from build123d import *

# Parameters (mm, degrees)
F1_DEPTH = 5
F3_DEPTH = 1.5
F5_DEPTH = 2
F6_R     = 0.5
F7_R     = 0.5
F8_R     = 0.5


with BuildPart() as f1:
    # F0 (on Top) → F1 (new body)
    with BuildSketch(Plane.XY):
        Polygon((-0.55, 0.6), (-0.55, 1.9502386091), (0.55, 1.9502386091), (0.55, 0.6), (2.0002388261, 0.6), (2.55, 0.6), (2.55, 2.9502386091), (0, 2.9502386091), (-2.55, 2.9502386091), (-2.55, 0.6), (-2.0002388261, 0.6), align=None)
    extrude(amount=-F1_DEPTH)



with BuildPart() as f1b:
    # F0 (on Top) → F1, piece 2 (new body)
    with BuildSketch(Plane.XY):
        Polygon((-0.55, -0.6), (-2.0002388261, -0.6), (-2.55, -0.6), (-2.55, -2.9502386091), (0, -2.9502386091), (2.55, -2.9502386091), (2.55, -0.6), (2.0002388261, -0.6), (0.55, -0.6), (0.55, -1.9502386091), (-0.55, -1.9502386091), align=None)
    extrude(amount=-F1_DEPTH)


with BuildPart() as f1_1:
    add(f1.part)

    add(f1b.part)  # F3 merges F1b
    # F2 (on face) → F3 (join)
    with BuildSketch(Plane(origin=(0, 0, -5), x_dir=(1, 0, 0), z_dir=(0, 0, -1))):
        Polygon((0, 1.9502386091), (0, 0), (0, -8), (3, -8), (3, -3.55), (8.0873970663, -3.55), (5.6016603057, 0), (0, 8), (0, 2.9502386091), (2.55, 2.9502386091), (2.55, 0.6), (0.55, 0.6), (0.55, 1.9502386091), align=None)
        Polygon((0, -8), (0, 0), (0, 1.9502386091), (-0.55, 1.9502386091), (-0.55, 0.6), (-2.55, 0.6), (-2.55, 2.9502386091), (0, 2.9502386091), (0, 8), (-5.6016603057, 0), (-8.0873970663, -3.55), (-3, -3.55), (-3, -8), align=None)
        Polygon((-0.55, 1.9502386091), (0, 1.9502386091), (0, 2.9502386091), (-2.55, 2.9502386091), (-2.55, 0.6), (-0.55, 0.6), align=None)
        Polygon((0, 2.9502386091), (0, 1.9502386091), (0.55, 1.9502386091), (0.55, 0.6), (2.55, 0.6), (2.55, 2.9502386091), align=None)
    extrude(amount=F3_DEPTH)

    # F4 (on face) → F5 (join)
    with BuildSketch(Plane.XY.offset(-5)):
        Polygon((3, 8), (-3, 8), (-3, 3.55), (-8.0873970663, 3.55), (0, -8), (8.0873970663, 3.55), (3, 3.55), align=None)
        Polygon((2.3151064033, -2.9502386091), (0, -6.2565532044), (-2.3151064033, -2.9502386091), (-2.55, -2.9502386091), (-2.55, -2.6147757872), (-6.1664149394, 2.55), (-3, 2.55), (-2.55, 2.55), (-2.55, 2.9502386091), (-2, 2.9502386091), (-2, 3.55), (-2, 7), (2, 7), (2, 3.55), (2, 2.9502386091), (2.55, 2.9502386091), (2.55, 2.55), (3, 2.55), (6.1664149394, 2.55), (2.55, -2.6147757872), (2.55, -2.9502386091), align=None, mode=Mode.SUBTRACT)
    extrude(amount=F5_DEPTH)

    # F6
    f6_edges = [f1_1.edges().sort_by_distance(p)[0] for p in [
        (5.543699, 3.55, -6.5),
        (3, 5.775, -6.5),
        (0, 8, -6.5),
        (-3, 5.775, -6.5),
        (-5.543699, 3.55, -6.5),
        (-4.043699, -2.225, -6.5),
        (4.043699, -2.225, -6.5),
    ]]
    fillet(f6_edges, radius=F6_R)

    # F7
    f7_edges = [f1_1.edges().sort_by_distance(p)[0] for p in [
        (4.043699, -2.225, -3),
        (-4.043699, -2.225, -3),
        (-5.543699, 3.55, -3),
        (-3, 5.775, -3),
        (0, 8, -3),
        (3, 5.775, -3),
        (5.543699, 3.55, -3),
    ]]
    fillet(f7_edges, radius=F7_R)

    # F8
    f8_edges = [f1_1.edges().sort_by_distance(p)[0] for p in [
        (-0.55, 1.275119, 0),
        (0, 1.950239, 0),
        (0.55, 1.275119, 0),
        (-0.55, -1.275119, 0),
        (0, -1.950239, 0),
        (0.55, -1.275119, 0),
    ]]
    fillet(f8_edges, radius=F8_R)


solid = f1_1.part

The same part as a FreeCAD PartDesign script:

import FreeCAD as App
import Part
import Sketcher

V = App.Vector
Q = App.Units.Quantity


def edges_at(feature, points):
    """Names of the edges that pass closest to the given points."""
    edges = feature.Shape.Edges
    near = lambda p: min(range(len(edges)), key=lambda i: edges[i].distToShape(Part.Vertex(*p))[0])
    return sorted({f"Edge{near(p) + 1}" for p in points})


def add_polygon(sketch, points):
    """Adds a closed chain of lines whose ends are joined by coincident constraints."""
    first, n = sketch.GeometryCount, len(points)
    for a, b in zip(points, points[1:] + points[:1]):
        sketch.addGeometry(Part.LineSegment(App.Vector(*a, 0), App.Vector(*b, 0)), False)
    for i in range(n):
        sketch.addConstraint(Sketcher.Constraint("Coincident", first + i, 2, first + (i + 1) % n, 1))

doc = App.newDocument("Part")
body = doc.addObject("PartDesign::Body", "Body")

sketch1 = body.newObject("Sketcher::SketchObject", "Sketch")
sketch1.AttachmentSupport = (doc.getObject("XY_Plane"), [""])
sketch1.MapMode = "FlatFace"
add_polygon(sketch1, [(-0.55, 0.6), (-0.55, 1.950239), (0.55, 1.950239), (0.55, 0.6), (2.55, 0.6), (2.55, 2.950239), (-2.55, 2.950239), (-2.55, 0.6)])
sketch1.addConstraint(Sketcher.Constraint("Vertical", 0))
sketch1.addConstraint(Sketcher.Constraint("Horizontal", 1))
sketch1.addConstraint(Sketcher.Constraint("Vertical", 2))
sketch1.addConstraint(Sketcher.Constraint("Horizontal", 3))
sketch1.addConstraint(Sketcher.Constraint("Vertical", 4))
sketch1.addConstraint(Sketcher.Constraint("Horizontal", 5))
sketch1.addConstraint(Sketcher.Constraint("Vertical", 6))
sketch1.addConstraint(Sketcher.Constraint("Horizontal", 7))
sketch1.addConstraint(Sketcher.Constraint("Symmetric", 3, 2, 6, 2, -2))
sketch1.addConstraint(Sketcher.Constraint("Equal", 3, 7))
sketch1.addConstraint(Sketcher.Constraint("DistanceX", 3, 1, 3, 2, 2.0))
sketch1.addConstraint(Sketcher.Constraint("DistanceX", 1, 1, 1, 2, 1.1))
sketch1.addConstraint(Sketcher.Constraint("DistanceY", 1, 2, 4, 2, 1.0))
sketch1.addConstraint(Sketcher.Constraint("DistanceY", -1, 1, 2, 2, 0.6))
sketch1.addConstraint(Sketcher.Constraint("DistanceY", 0, 1, 0, 2, 1.350239))
pad1 = body.newObject("PartDesign::Pad", "Pad")
pad1.Profile = sketch1
pad1.Length = 5
pad1.Reversed = True
body2 = doc.addObject("PartDesign::Body", "Body001")

sketch2 = body2.newObject("Sketcher::SketchObject", "Sketch001")
sketch2.AttachmentSupport = (doc.getObject("XY_Plane001"), [""])
sketch2.MapMode = "FlatFace"
add_polygon(sketch2, [(-0.55, -0.6), (-2.55, -0.6), (-2.55, -2.950239), (2.55, -2.950239), (2.55, -0.6), (0.55, -0.6), (0.55, -1.950239), (-0.55, -1.950239)])
sketch2.addConstraint(Sketcher.Constraint("Horizontal", 0))
sketch2.addConstraint(Sketcher.Constraint("Vertical", 1))
sketch2.addConstraint(Sketcher.Constraint("Horizontal", 2))
sketch2.addConstraint(Sketcher.Constraint("Vertical", 3))
sketch2.addConstraint(Sketcher.Constraint("Horizontal", 4))
sketch2.addConstraint(Sketcher.Constraint("Vertical", 5))
sketch2.addConstraint(Sketcher.Constraint("Horizontal", 6))
sketch2.addConstraint(Sketcher.Constraint("Vertical", 7))
sketch2.addConstraint(Sketcher.Constraint("Symmetric", 0, 2, 3, 2, -2))
sketch2.addConstraint(Sketcher.Constraint("Equal", 0, 4))
sketch2.addConstraint(Sketcher.Constraint("DistanceX", 0, 2, 0, 1, 2.0))
sketch2.addConstraint(Sketcher.Constraint("DistanceX", 2, 1, 2, 2, 5.1))
sketch2.addConstraint(Sketcher.Constraint("DistanceY", 2, 2, 5, 2, 1.0))
sketch2.addConstraint(Sketcher.Constraint("DistanceY", 0, 2, -1, 1, 0.6))
sketch2.addConstraint(Sketcher.Constraint("DistanceY", 1, 2, 1, 1, 2.350239))
pad2 = body2.newObject("PartDesign::Pad", "Pad001")
pad2.Profile = sketch2
pad2.Length = 5
pad2.Reversed = True
body.AllowCompound = True
doc.recompute()

boolean = body.newObject("PartDesign::Boolean", "Boolean")
boolean.Type = "Fuse"
boolean.addObjects([body2])

sketch3 = body.newObject("Sketcher::SketchObject", "Sketch002")
sketch3.AttachmentSupport = (doc.getObject("XY_Plane"), [""])
sketch3.MapMode = "FlatFace"
sketch3.AttachmentOffset = App.Placement(V(0, 0, -5), App.Rotation())
add_polygon(sketch3, [(3, 8), (3, 3.55), (8.087397, 3.55), (5.60166, 0), (0, -8), (-5.60166, 0), (-8.087397, 3.55), (-3, 3.55), (-3, 8)])
sketch3.addConstraint(Sketcher.Constraint("Vertical", 0))
sketch3.addConstraint(Sketcher.Constraint("Horizontal", 1))
sketch3.addConstraint(Sketcher.Constraint("Horizontal", 6))
sketch3.addConstraint(Sketcher.Constraint("Vertical", 7))
sketch3.addConstraint(Sketcher.Constraint("Horizontal", 8))
sketch3.addConstraint(Sketcher.Constraint("Symmetric", 2, 2, 4, 2, -1, 1))
sketch3.addConstraint(Sketcher.Constraint("Symmetric", 1, 2, 5, 2, -2))
sketch3.addConstraint(Sketcher.Constraint("PointOnObject", 2, 2, -1))
sketch3.addConstraint(Sketcher.Constraint("PointOnObject", 3, 2, -2))
sketch3.addConstraint(Sketcher.Constraint("Parallel", 2, 3))
sketch3.addConstraint(Sketcher.Constraint("Equal", 1, 6))
sketch3.addConstraint(Sketcher.Constraint("DistanceX", 8, 1, 8, 2, 6.0))
sketch3.addConstraint(Sketcher.Constraint("Angle", 2, Q("-125 deg")))
sketch3.addConstraint(Sketcher.Constraint("DistanceY", 3, 2, -1, 1, 8.0))
sketch3.addConstraint(Sketcher.Constraint("DistanceY", -1, 1, 7, 2, 8.0))
sketch3.addConstraint(Sketcher.Constraint("DistanceY", 0, 2, 0, 1, 4.45))
pad3 = body.newObject("PartDesign::Pad", "Pad002")
pad3.Profile = sketch3
pad3.Length = 1.5
pad3.Reversed = True

sketch4 = body.newObject("Sketcher::SketchObject", "Sketch003")
sketch4.AttachmentSupport = (doc.getObject("XY_Plane"), [""])
sketch4.MapMode = "FlatFace"
sketch4.AttachmentOffset = App.Placement(V(0, 0, -5), App.Rotation())
add_polygon(sketch4, [(3, 8), (-3, 8), (-3, 3.55), (-8.087397, 3.55), (0, -8), (8.087397, 3.55), (3, 3.55)])
add_polygon(sketch4, [(2.55, -2.950239), (2.315106, -2.950239), (0, -6.256553), (-2.315106, -2.950239), (-2.55, -2.950239), (-2.55, -2.614776), (-6.166415, 2.55), (-2.55, 2.55), (-2.55, 2.950239), (-2, 2.950239), (-2, 7), (2, 7), (2, 2.950239), (2.55, 2.950239), (2.55, 2.55), (6.166415, 2.55), (2.55, -2.614776)])
sketch4.addConstraint(Sketcher.Constraint("Horizontal", 0))
sketch4.addConstraint(Sketcher.Constraint("Vertical", 1))
sketch4.addConstraint(Sketcher.Constraint("Horizontal", 2))
sketch4.addConstraint(Sketcher.Constraint("Horizontal", 5))
sketch4.addConstraint(Sketcher.Constraint("Vertical", 6))
sketch4.addConstraint(Sketcher.Constraint("Horizontal", 7))
sketch4.addConstraint(Sketcher.Constraint("Horizontal", 10))
sketch4.addConstraint(Sketcher.Constraint("Vertical", 11))
sketch4.addConstraint(Sketcher.Constraint("Horizontal", 13))
sketch4.addConstraint(Sketcher.Constraint("Vertical", 14))
sketch4.addConstraint(Sketcher.Constraint("Horizontal", 15))
sketch4.addConstraint(Sketcher.Constraint("Vertical", 16))
sketch4.addConstraint(Sketcher.Constraint("Horizontal", 17))
sketch4.addConstraint(Sketcher.Constraint("Vertical", 18))
sketch4.addConstraint(Sketcher.Constraint("Horizontal", 19))
sketch4.addConstraint(Sketcher.Constraint("Vertical", 20))
sketch4.addConstraint(Sketcher.Constraint("Horizontal", 21))
sketch4.addConstraint(Sketcher.Constraint("Vertical", 23))
sketch4.addConstraint(Sketcher.Constraint("Symmetric", 10, 2, 19, 2, -1, 1))
sketch4.addConstraint(Sketcher.Constraint("Symmetric", 14, 2, 23, 2, -1, 1))
sketch4.addConstraint(Sketcher.Constraint("Symmetric", 2, 2, 4, 2, -2))
sketch4.addConstraint(Sketcher.Constraint("Symmetric", 7, 2, 9, 2, -2))
sketch4.addConstraint(Sketcher.Constraint("Symmetric", 13, 2, 20, 2, -2))
sketch4.addConstraint(Sketcher.Constraint("PointOnObject", 3, 2, -2))
sketch4.addConstraint(Sketcher.Constraint("PointOnObject", 8, 2, -2))
sketch4.addConstraint(Sketcher.Constraint("Parallel", 4, 8))
sketch4.addConstraint(Sketcher.Constraint("Parallel", 9, 12))
sketch4.addConstraint(Sketcher.Constraint("Parallel", 8, 22))
sketch4.addConstraint(Sketcher.Constraint("Horizontal", 11, 2, 22, 2))
sketch4.addConstraint(Sketcher.Constraint("Equal", 2, 5))
sketch4.addConstraint(Sketcher.Constraint("Equal", 15, 19))
sketch4.addConstraint(Sketcher.Constraint("DistanceX", 0, 2, 0, 1, 6.0))
sketch4.addConstraint(Sketcher.Constraint("DistanceX", 17, 1, 17, 2, 4.0))
sketch4.addConstraint(Sketcher.Constraint("Angle", 3, Q("-55 deg")))
sketch4.addConstraint(Sketcher.Constraint("DistanceY", -1, 1, 0, 2, 8.0))
sketch4.addConstraint(Sketcher.Constraint("DistanceY", 3, 2, -1, 1, 8.0))
sketch4.addConstraint(Sketcher.Constraint("DistanceY", -1, 1, 16, 2, 7.0))
sketch4.addConstraint(Sketcher.Constraint("DistanceY", 12, 2, 2, 2, 1.0))
sketch4.addConstraint(Sketcher.Constraint("DistanceX", 15, 1, 15, 2, 0.55))
sketch4.addConstraint(Sketcher.Constraint("DistanceY", 1, 2, 1, 1, 4.45))
sketch4.addConstraint(Sketcher.Constraint("DistanceY", 14, 1, 14, 2, 0.400239))
sketch4.addConstraint(Sketcher.Constraint("DistanceX", 7, 2, 7, 1, 0.234894))
sketch4.addConstraint(Sketcher.Constraint("DistanceX", 13, 1, 13, 2, 3.616415))
pad4 = body.newObject("PartDesign::Pad", "Pad003")
pad4.Profile = sketch4
pad4.Length = 2
doc.recompute()

fillet = body.newObject("PartDesign::Fillet", "Fillet")
fillet.Base = (pad4, edges_at(pad4, [
    (5.544, 3.55, -6.5),
    (3, 5.775, -6.5),
    (0, 8, -6.5),
    (-3, 5.775, -6.5),
    (-5.544, 3.55, -6.5),
    (-2.801, -4, -6.5),
    (2.801, -4, -6.5),
]))
fillet.Radius = 0.5
doc.recompute()

fillet2 = body.newObject("PartDesign::Fillet", "Fillet001")
fillet2.Base = (fillet, edges_at(fillet, [
    (4.044, -2.225, -3),
    (-4.044, -2.225, -3),
    (-5.544, 3.55, -3),
    (-3, 5.775, -3),
    (0, 8, -3),
    (3, 5.775, -3),
    (5.544, 3.55, -3),
]))
fillet2.Radius = 0.5
doc.recompute()

fillet3 = body.newObject("PartDesign::Fillet", "Fillet002")
fillet3.Base = (fillet2, edges_at(fillet2, [
    (-0.55, 1.275, 0),
    (0, 1.95, 0),
    (0.55, 1.275, 0),
    (-0.55, -1.275, 0),
    (0, -1.95, 0),
    (0.55, -1.275, 0),
]))
fillet3.Radius = 0.5

doc.recompute()
